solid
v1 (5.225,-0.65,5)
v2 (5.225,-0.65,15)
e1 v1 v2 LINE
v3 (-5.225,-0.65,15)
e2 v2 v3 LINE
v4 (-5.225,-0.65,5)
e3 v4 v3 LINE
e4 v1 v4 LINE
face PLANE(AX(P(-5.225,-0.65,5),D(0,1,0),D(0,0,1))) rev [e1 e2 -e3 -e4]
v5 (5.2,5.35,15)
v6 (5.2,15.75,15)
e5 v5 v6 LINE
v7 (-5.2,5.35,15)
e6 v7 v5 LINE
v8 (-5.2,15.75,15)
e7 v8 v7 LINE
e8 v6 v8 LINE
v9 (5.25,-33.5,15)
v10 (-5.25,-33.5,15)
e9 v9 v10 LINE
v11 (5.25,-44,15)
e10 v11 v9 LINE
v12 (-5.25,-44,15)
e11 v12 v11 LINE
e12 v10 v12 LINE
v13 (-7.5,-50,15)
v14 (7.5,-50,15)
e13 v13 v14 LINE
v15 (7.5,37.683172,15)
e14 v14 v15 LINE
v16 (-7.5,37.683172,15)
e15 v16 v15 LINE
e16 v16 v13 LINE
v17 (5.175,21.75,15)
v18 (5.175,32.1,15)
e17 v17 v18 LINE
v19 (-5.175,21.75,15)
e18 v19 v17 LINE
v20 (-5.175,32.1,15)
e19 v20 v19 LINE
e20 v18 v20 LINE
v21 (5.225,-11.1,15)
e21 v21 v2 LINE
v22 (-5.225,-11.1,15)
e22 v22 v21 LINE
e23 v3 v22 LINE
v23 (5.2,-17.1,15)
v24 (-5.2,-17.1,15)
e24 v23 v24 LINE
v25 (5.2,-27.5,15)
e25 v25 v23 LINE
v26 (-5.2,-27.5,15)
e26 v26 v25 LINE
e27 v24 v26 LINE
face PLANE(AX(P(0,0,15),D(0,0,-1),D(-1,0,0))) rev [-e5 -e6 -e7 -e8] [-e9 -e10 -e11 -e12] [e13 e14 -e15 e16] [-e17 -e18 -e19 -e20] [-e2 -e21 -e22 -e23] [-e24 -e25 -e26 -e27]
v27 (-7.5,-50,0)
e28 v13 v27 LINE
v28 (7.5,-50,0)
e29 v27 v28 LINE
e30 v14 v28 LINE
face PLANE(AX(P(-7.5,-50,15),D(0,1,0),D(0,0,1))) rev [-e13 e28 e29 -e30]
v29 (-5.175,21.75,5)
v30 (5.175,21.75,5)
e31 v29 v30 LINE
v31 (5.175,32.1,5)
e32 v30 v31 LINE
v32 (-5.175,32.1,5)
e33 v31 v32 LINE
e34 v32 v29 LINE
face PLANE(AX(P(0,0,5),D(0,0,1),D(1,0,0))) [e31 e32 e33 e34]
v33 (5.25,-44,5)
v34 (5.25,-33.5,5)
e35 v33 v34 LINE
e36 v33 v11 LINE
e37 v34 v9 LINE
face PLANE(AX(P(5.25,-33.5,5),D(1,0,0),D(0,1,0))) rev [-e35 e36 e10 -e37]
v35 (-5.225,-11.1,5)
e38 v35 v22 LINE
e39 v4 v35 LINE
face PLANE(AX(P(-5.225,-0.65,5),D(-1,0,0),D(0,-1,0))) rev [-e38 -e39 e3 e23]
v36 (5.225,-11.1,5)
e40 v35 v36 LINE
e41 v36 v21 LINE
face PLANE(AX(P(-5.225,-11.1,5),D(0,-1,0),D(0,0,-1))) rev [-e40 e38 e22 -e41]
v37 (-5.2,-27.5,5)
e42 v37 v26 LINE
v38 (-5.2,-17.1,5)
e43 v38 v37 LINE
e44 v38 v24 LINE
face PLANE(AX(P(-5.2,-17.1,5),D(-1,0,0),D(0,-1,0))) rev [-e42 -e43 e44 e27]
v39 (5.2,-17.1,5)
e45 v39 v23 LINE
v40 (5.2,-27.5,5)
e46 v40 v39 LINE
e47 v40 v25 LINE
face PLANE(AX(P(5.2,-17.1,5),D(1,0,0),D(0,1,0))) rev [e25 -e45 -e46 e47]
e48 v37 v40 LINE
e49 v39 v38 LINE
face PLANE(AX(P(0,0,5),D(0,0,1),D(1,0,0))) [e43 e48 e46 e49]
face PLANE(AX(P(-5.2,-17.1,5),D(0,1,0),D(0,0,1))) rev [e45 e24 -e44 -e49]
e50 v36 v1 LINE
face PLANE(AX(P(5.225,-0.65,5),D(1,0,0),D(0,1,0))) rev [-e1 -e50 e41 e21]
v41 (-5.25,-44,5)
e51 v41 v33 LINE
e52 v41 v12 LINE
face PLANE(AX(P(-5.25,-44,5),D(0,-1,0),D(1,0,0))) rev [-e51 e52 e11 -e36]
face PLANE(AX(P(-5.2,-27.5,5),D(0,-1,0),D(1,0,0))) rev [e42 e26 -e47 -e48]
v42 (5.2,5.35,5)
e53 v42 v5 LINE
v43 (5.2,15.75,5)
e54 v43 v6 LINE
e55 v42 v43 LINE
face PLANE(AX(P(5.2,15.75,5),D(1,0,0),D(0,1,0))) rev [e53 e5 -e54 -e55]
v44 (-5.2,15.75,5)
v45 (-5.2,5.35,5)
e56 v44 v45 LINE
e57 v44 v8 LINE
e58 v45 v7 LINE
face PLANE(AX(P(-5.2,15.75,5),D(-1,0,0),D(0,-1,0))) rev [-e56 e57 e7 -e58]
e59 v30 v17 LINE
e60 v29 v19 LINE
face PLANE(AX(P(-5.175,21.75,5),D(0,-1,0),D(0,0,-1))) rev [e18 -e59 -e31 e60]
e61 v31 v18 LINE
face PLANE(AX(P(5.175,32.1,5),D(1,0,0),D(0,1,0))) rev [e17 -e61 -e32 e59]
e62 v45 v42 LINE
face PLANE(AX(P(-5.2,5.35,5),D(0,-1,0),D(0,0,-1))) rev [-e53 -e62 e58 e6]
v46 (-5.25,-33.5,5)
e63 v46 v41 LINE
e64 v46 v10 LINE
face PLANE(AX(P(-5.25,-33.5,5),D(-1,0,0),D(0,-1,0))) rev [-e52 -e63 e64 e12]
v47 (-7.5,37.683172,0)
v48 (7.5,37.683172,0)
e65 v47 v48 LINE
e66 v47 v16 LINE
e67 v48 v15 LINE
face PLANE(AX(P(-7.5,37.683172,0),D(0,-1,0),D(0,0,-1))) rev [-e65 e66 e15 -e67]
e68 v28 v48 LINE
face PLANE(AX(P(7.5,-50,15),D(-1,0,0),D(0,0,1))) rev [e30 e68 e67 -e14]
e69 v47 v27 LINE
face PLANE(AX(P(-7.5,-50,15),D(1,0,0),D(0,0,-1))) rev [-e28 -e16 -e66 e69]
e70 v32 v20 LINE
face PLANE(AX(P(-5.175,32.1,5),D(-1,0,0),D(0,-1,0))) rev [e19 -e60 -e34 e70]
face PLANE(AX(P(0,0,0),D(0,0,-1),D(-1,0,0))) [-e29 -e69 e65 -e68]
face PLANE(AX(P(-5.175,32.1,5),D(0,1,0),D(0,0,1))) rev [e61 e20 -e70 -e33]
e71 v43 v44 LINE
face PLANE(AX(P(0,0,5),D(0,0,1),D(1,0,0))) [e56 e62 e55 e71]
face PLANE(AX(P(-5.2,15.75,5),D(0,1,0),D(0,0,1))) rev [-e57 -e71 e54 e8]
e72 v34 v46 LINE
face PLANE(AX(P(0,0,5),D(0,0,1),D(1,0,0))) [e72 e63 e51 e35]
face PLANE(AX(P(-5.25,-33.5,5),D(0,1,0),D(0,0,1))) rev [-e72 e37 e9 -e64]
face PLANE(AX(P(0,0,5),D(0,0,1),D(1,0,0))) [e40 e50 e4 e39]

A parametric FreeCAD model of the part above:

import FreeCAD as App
import Part
import Sketcher
from FreeCAD import Vector

doc = App.newDocument("Part")
params = doc.addObject("Spreadsheet::Sheet", "Params")
for row, (alias, value) in enumerate([
    ("sketch1_width", "15 mm"),
    ("sketch1_height", "100 mm"),
    ("pad1_length", "15 mm"),
    ("sketch2_width", "10.4 mm"),
    ("sketch2_width2", "10.5 mm"),
    ("sketch2_width3", "10.35 mm"),
    ("sketch2_width4", "10.45 mm"),
    ("pocket1_length", "10 mm"),
    ("sketch3_width", "15 mm"),
], start=1):
    params.set(f"A{row}", alias)
    params.set(f"B{row}", "=" + value)
    params.setAlias(f"B{row}", alias)

body = doc.addObject("PartDesign::Body", "Body")

sketch1 = body.newObject("Sketcher::SketchObject", "Sketch")
sketch1.AttachmentSupport = (doc.getObject("XY_Plane"), [""])
sketch1.MapMode = "FlatFace"
sketch1.addGeometry([
    Part.LineSegment(Vector(-7.5, 50, 0), Vector(-7.5, -50, 0)),
    Part.LineSegment(Vector(-7.5, -50, 0), Vector(7.5, -50, 0)),
    Part.LineSegment(Vector(7.5, -50, 0), Vector(7.5, 50, 0)),
    Part.LineSegment(Vector(7.5, 50, 0), Vector(-7.5, 50, 0)),
], False)
sketch1.addConstraint([
    Sketcher.Constraint("Coincident", 0, 2, 1, 1),
    Sketcher.Constraint("Coincident", 1, 2, 2, 1),
    Sketcher.Constraint("Coincident", 2, 2, 3, 1),
    Sketcher.Constraint("Coincident", 3, 2, 0, 1),
    Sketcher.Constraint("Vertical", 0),
    Sketcher.Constraint("Horizontal", 1),
    Sketcher.Constraint("Vertical", 2),
    Sketcher.Constraint("Horizontal", 3),
    Sketcher.Constraint("Symmetric", 0, 2, 2, 2, -1, 1),
    Sketcher.Constraint("DistanceX", 1, 1, 1, 2, 15.0),
    Sketcher.Constraint("DistanceY", 0, 2, 0, 1, 100.0),
])
sketch1.setExpression("Constraints[9]", "Params.sketch1_width")
sketch1.setExpression("Constraints[10]", "Params.sketch1_height")
pad1 = body.newObject("PartDesign::Pad", "Pad")
pad1.Profile = sketch1
pad1.setExpression("Length", "Params.pad1_length")

sketch2 = body.newObject("Sketcher::SketchObject", "Sketch001")
sketch2.AttachmentSupport = (doc.getObject("XY_Plane"), [""])
sketch2.MapMode = "FlatFace"
sketch2.AttachmentOffset = App.Placement(Vector(0, 0, 15), App.Rotation())
sketch2.addGeometry([
    Part.LineSegment(Vector(-5.175, 32.1, 0), Vector(-5.175, 21.75, 0)),
    Part.LineSegment(Vector(-5.175, 21.75, 0), Vector(5.175, 21.75, 0)),
    Part.LineSegment(Vector(5.175, 21.75, 0), Vector(5.175, 32.1, 0)),
    Part.LineSegment(Vector(5.175, 32.1, 0), Vector(-5.175, 32.1, 0)),
    Part.LineSegment(Vector(-5.2, 15.75, 0), Vector(-5.2, 5.35, 0)),
    Part.LineSegment(Vector(-5.2, 5.35, 0), Vector(5.2, 5.35, 0)),
    Part.LineSegment(Vector(5.2, 5.35, 0), Vector(5.2, 15.75, 0)),
    Part.LineSegment(Vector(5.2, 15.75, 0), Vector(-5.2, 15.75, 0)),
    Part.LineSegment(Vector(-5.225, -0.65, 0), Vector(-5.225, -11.1, 0)),
    Part.LineSegment(Vector(-5.225, -11.1, 0), Vector(5.225, -11.1, 0)),
    Part.LineSegment(Vector(5.225, -11.1, 0), Vector(5.225, -0.65, 0)),
    Part.LineSegment(Vector(5.225, -0.65, 0), Vector(-5.225, -0.65, 0)),
    Part.LineSegment(Vector(-5.2, -17.1, 0), Vector(-5.2, -27.5, 0)),
    Part.LineSegment(Vector(-5.2, -27.5, 0), Vector(5.2, -27.5, 0)),
    Part.LineSegment(Vector(5.2, -27.5, 0), Vector(5.2, -17.1, 0)),
    Part.LineSegment(Vector(5.2, -17.1, 0), Vector(-5.2, -17.1, 0)),
    Part.LineSegment(Vector(-5.25, -33.5, 0), Vector(-5.25, -44, 0)),
    Part.LineSegment(Vector(-5.25, -44, 0), Vector(5.25, -44, 0)),
    Part.LineSegment(Vector(5.25, -44, 0), Vector(5.25, -33.5, 0)),
    Part.LineSegment(Vector(5.25, -33.5, 0), Vector(-5.25, -33.5, 0)),
], False)
sketch2.addConstraint([
    Sketcher.Constraint("Coincident", 0, 2, 1, 1),
    Sketcher.Constraint("Coincident", 1, 2, 2, 1),
    Sketcher.Constraint("Coincident", 2, 2, 3, 1),
    Sketcher.Constraint("Coincident", 3, 2, 0, 1),
    Sketcher.Constraint("Coincident", 4, 2, 5, 1),
    Sketcher.Constraint("Coincident", 5, 2, 6, 1),
    Sketcher.Constraint("Coincident", 6, 2, 7, 1),
    Sketcher.Constraint("Coincident", 7, 2, 4, 1),
    Sketcher.Constraint("Coincident", 8, 2, 9, 1),
    Sketcher.Constraint("Coincident", 9, 2, 10, 1),
    Sketcher.Constraint("Coincident", 10, 2, 11, 1),
    Sketcher.Constraint("Coincident", 11, 2, 8, 1),
    Sketcher.Constraint("Coincident", 12, 2, 13, 1),
    Sketcher.Constraint("Coincident", 13, 2, 14, 1),
    Sketcher.Constraint("Coincident", 14, 2, 15, 1),
    Sketcher.Constraint("Coincident", 15, 2, 12, 1),
    Sketcher.Constraint("Coincident", 16, 2, 17, 1),
    Sketcher.Constraint("Coincident", 17, 2, 18, 1),
    Sketcher.Constraint("Coincident", 18, 2, 19, 1),
    Sketcher.Constraint("Coincident", 19, 2, 16, 1),
    Sketcher.Constraint("Vertical", 0),
    Sketcher.Constraint("Horizontal", 1),
    Sketcher.Constraint("Vertical", 2),
    Sketcher.Constraint("Horizontal", 3),
    Sketcher.Constraint("Vertical", 4),
    Sketcher.Constraint("Horizontal", 5),
    Sketcher.Constraint("Vertical", 6),
    Sketcher.Constraint("Horizontal", 7),
    Sketcher.Constraint("Vertical", 8),
    Sketcher.Constraint("Horizontal", 9),
    Sketcher.Constraint("Vertical", 10),
    Sketcher.Constraint("Horizontal", 11),
    Sketcher.Constraint("Vertical", 12),
    Sketcher.Constraint("Horizontal", 13),
    Sketcher.Constraint("Vertical", 14),
    Sketcher.Constraint("Horizontal", 15),
    Sketcher.Constraint("Vertical", 16),
    Sketcher.Constraint("Horizontal", 17),
    Sketcher.Constraint("Vertical", 18),
    Sketcher.Constraint("Horizontal", 19),
    Sketcher.Constraint("Vertical", 7, 2, 12, 2),
    Sketcher.Constraint("Vertical", 6, 2, 13, 2),
    Sketcher.Constraint("Equal", 3, 0),
    Sketcher.Constraint("Equal", 15, 4),
    Sketcher.Constraint("Equal", 11, 8),
    Sketcher.Constraint("Equal", 6, 12),
    Sketcher.Constraint("Equal", 19, 16),
    Sketcher.Constraint("DistanceX", 5, 1, 5, 2, 10.4),
    Sketcher.Constraint("DistanceX", 17, 1, 17, 2, 10.5),
    Sketcher.Constraint("DistanceY", 16, 2, -1, 1, 44.0),
    Sketcher.Constraint("DistanceY", 6, 2, 1, 2, 6.0),
    Sketcher.Constraint("DistanceY", 10, 2, 5, 2, 6.0),
    Sketcher.Constraint("DistanceY", 14, 2, 9, 2, 6.0),
    Sketcher.Constraint("DistanceY", 18, 2, 13, 2, 6.0),
    Sketcher.Constraint("DistanceX", 1, 1, 1, 2, 10.35),
    Sketcher.Constraint("DistanceX", 9, 1, 9, 2, 10.45),
    Sketcher.Constraint("DistanceX", 4, 2, -1, 1, 5.2),
    Sketcher.Constraint("DistanceX", 16, 2, -1, 1, 5.25),
    Sketcher.Constraint("DistanceX", 8, 2, 0, 2, 0.05),
    Sketcher.Constraint("DistanceX", 0, 2, -1, 1, 5.175),
])
sketch2.setExpression("Constraints[47]", "Params.sketch2_width")
sketch2.setExpression("Constraints[48]", "Params.sketch2_width2")
sketch2.setExpression("Constraints[54]", "Params.sketch2_width3")
sketch2.setExpression("Constraints[55]", "Params.sketch2_width4")
pocket1 = body.newObject("PartDesign::Pocket", "Pocket")
pocket1.Profile = sketch2
pocket1.setExpression("Length", "Params.pocket1_length")

sketch3 = body.newObject("Sketcher::SketchObject", "Sketch002")
sketch3.AttachmentSupport = (doc.getObject("XY_Plane"), [""])
sketch3.MapMode = "FlatFace"
sketch3.AttachmentOffset = App.Placement(Vector(0, 0, 15), App.Rotation())
sketch3.addGeometry([
    Part.LineSegment(Vector(-7.5, 50, 0), Vector(-7.5, 37.683172, 0)),
    Part.LineSegment(Vector(-7.5, 37.683172, 0), Vector(7.5, 37.683172, 0)),
    Part.LineSegment(Vector(7.5, 37.683172, 0), Vector(7.5, 50, 0)),
    Part.LineSegment(Vector(7.5, 50, 0), Vector(-7.5, 50, 0)),
], False)
sketch3.addConstraint([
    Sketcher.Constraint("Coincident", 0, 2, 1, 1),
    Sketcher.Constraint("Coincident", 1, 2, 2, 1),
    Sketcher.Constraint("Coincident", 2, 2, 3, 1),
    Sketcher.Constraint("Coincident", 3, 2, 0, 1),
    Sketcher.Constraint("Vertical", 0),
    Sketcher.Constraint("Horizontal", 1),
    Sketcher.Constraint("Vertical", 2),
    Sketcher.Constraint("Horizontal", 3),
    Sketcher.Constraint("DistanceX", 1, 1, 1, 2, 15.0),
    Sketcher.Constraint("DistanceY", -1, 1, 2, 2, 50.0),
    Sketcher.Constraint("DistanceX", 0, 2, -1, 1, 7.5),
    Sketcher.Constraint("DistanceY", 0, 2, 0, 1, 12.316828),
])
sketch3.setExpression("Constraints[8]", "Params.sketch3_width")
pocket2 = body.newObject("PartDesign::Pocket", "Pocket001")
pocket2.Profile = sketch3
pocket2.Type = "ThroughAll"

doc.recompute()
